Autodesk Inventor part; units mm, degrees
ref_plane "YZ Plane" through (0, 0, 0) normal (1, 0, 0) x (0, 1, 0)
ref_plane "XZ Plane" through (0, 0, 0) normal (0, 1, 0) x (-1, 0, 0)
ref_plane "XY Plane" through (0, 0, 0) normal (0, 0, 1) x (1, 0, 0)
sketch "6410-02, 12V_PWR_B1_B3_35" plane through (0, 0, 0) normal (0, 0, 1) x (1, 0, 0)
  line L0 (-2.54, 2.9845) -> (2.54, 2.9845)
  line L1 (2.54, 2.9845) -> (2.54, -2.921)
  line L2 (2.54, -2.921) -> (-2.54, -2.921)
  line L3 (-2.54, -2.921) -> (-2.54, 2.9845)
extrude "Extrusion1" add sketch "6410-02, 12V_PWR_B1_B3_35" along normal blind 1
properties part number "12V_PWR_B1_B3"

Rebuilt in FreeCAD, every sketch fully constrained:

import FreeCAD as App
import Part
import Sketcher

V = App.Vector
Q = App.Units.Quantity

doc = App.newDocument("Part")
body = doc.addObject("PartDesign::Body", "Body")

# Sketch on XY plane
sketch1 = body.newObject("Sketcher::SketchObject", "Sketch")
sketch1.AttachmentSupport = (doc.getObject("XY_Plane"), [""])
sketch1.MapMode = "FlatFace"
sketch1.addGeometry(Part.LineSegment(V(3, 3, 0), V(-3, 3, 0)), False)
sketch1.addGeometry(Part.LineSegment(V(-3, 3, 0), V(-3, -3, 0)), False)
sketch1.addGeometry(Part.LineSegment(V(-3, -3, 0), V(3, -3, 0)), False)
sketch1.addGeometry(Part.LineSegment(V(3, -3, 0), V(3, 3, 0)), False)
sketch1.addConstraint(Sketcher.Constraint("Coincident", 0, 2, 1, 1))
sketch1.addConstraint(Sketcher.Constraint("Coincident", 1, 2, 2, 1))
sketch1.addConstraint(Sketcher.Constraint("Coincident", 2, 2, 3, 1))
sketch1.addConstraint(Sketcher.Constraint("Coincident", 3, 2, 0, 1))
sketch1.addConstraint(Sketcher.Constraint("Horizontal", 0))
sketch1.addConstraint(Sketcher.Constraint("Vertical", 1))
sketch1.addConstraint(Sketcher.Constraint("Horizontal", 2))
sketch1.addConstraint(Sketcher.Constraint("Vertical", 3))
sketch1.addConstraint(Sketcher.Constraint("DistanceX", 0, 2, 0, 1, Q("5.08 mm")))
sketch1.addConstraint(Sketcher.Constraint("DistanceX", 0, 2, -1, 1, Q("2.54 mm")))
sketch1.addConstraint(Sketcher.Constraint("DistanceY", 1, 2, 1, 1, Q("5.9055 mm")))
sketch1.addConstraint(Sketcher.Constraint("DistanceY", 1, 2, -1, 1, Q("2.921 mm")))
pad1 = body.newObject("PartDesign::Pad", "Pad")
pad1.Profile = sketch1
pad1.Length = 1

doc.recompute()
